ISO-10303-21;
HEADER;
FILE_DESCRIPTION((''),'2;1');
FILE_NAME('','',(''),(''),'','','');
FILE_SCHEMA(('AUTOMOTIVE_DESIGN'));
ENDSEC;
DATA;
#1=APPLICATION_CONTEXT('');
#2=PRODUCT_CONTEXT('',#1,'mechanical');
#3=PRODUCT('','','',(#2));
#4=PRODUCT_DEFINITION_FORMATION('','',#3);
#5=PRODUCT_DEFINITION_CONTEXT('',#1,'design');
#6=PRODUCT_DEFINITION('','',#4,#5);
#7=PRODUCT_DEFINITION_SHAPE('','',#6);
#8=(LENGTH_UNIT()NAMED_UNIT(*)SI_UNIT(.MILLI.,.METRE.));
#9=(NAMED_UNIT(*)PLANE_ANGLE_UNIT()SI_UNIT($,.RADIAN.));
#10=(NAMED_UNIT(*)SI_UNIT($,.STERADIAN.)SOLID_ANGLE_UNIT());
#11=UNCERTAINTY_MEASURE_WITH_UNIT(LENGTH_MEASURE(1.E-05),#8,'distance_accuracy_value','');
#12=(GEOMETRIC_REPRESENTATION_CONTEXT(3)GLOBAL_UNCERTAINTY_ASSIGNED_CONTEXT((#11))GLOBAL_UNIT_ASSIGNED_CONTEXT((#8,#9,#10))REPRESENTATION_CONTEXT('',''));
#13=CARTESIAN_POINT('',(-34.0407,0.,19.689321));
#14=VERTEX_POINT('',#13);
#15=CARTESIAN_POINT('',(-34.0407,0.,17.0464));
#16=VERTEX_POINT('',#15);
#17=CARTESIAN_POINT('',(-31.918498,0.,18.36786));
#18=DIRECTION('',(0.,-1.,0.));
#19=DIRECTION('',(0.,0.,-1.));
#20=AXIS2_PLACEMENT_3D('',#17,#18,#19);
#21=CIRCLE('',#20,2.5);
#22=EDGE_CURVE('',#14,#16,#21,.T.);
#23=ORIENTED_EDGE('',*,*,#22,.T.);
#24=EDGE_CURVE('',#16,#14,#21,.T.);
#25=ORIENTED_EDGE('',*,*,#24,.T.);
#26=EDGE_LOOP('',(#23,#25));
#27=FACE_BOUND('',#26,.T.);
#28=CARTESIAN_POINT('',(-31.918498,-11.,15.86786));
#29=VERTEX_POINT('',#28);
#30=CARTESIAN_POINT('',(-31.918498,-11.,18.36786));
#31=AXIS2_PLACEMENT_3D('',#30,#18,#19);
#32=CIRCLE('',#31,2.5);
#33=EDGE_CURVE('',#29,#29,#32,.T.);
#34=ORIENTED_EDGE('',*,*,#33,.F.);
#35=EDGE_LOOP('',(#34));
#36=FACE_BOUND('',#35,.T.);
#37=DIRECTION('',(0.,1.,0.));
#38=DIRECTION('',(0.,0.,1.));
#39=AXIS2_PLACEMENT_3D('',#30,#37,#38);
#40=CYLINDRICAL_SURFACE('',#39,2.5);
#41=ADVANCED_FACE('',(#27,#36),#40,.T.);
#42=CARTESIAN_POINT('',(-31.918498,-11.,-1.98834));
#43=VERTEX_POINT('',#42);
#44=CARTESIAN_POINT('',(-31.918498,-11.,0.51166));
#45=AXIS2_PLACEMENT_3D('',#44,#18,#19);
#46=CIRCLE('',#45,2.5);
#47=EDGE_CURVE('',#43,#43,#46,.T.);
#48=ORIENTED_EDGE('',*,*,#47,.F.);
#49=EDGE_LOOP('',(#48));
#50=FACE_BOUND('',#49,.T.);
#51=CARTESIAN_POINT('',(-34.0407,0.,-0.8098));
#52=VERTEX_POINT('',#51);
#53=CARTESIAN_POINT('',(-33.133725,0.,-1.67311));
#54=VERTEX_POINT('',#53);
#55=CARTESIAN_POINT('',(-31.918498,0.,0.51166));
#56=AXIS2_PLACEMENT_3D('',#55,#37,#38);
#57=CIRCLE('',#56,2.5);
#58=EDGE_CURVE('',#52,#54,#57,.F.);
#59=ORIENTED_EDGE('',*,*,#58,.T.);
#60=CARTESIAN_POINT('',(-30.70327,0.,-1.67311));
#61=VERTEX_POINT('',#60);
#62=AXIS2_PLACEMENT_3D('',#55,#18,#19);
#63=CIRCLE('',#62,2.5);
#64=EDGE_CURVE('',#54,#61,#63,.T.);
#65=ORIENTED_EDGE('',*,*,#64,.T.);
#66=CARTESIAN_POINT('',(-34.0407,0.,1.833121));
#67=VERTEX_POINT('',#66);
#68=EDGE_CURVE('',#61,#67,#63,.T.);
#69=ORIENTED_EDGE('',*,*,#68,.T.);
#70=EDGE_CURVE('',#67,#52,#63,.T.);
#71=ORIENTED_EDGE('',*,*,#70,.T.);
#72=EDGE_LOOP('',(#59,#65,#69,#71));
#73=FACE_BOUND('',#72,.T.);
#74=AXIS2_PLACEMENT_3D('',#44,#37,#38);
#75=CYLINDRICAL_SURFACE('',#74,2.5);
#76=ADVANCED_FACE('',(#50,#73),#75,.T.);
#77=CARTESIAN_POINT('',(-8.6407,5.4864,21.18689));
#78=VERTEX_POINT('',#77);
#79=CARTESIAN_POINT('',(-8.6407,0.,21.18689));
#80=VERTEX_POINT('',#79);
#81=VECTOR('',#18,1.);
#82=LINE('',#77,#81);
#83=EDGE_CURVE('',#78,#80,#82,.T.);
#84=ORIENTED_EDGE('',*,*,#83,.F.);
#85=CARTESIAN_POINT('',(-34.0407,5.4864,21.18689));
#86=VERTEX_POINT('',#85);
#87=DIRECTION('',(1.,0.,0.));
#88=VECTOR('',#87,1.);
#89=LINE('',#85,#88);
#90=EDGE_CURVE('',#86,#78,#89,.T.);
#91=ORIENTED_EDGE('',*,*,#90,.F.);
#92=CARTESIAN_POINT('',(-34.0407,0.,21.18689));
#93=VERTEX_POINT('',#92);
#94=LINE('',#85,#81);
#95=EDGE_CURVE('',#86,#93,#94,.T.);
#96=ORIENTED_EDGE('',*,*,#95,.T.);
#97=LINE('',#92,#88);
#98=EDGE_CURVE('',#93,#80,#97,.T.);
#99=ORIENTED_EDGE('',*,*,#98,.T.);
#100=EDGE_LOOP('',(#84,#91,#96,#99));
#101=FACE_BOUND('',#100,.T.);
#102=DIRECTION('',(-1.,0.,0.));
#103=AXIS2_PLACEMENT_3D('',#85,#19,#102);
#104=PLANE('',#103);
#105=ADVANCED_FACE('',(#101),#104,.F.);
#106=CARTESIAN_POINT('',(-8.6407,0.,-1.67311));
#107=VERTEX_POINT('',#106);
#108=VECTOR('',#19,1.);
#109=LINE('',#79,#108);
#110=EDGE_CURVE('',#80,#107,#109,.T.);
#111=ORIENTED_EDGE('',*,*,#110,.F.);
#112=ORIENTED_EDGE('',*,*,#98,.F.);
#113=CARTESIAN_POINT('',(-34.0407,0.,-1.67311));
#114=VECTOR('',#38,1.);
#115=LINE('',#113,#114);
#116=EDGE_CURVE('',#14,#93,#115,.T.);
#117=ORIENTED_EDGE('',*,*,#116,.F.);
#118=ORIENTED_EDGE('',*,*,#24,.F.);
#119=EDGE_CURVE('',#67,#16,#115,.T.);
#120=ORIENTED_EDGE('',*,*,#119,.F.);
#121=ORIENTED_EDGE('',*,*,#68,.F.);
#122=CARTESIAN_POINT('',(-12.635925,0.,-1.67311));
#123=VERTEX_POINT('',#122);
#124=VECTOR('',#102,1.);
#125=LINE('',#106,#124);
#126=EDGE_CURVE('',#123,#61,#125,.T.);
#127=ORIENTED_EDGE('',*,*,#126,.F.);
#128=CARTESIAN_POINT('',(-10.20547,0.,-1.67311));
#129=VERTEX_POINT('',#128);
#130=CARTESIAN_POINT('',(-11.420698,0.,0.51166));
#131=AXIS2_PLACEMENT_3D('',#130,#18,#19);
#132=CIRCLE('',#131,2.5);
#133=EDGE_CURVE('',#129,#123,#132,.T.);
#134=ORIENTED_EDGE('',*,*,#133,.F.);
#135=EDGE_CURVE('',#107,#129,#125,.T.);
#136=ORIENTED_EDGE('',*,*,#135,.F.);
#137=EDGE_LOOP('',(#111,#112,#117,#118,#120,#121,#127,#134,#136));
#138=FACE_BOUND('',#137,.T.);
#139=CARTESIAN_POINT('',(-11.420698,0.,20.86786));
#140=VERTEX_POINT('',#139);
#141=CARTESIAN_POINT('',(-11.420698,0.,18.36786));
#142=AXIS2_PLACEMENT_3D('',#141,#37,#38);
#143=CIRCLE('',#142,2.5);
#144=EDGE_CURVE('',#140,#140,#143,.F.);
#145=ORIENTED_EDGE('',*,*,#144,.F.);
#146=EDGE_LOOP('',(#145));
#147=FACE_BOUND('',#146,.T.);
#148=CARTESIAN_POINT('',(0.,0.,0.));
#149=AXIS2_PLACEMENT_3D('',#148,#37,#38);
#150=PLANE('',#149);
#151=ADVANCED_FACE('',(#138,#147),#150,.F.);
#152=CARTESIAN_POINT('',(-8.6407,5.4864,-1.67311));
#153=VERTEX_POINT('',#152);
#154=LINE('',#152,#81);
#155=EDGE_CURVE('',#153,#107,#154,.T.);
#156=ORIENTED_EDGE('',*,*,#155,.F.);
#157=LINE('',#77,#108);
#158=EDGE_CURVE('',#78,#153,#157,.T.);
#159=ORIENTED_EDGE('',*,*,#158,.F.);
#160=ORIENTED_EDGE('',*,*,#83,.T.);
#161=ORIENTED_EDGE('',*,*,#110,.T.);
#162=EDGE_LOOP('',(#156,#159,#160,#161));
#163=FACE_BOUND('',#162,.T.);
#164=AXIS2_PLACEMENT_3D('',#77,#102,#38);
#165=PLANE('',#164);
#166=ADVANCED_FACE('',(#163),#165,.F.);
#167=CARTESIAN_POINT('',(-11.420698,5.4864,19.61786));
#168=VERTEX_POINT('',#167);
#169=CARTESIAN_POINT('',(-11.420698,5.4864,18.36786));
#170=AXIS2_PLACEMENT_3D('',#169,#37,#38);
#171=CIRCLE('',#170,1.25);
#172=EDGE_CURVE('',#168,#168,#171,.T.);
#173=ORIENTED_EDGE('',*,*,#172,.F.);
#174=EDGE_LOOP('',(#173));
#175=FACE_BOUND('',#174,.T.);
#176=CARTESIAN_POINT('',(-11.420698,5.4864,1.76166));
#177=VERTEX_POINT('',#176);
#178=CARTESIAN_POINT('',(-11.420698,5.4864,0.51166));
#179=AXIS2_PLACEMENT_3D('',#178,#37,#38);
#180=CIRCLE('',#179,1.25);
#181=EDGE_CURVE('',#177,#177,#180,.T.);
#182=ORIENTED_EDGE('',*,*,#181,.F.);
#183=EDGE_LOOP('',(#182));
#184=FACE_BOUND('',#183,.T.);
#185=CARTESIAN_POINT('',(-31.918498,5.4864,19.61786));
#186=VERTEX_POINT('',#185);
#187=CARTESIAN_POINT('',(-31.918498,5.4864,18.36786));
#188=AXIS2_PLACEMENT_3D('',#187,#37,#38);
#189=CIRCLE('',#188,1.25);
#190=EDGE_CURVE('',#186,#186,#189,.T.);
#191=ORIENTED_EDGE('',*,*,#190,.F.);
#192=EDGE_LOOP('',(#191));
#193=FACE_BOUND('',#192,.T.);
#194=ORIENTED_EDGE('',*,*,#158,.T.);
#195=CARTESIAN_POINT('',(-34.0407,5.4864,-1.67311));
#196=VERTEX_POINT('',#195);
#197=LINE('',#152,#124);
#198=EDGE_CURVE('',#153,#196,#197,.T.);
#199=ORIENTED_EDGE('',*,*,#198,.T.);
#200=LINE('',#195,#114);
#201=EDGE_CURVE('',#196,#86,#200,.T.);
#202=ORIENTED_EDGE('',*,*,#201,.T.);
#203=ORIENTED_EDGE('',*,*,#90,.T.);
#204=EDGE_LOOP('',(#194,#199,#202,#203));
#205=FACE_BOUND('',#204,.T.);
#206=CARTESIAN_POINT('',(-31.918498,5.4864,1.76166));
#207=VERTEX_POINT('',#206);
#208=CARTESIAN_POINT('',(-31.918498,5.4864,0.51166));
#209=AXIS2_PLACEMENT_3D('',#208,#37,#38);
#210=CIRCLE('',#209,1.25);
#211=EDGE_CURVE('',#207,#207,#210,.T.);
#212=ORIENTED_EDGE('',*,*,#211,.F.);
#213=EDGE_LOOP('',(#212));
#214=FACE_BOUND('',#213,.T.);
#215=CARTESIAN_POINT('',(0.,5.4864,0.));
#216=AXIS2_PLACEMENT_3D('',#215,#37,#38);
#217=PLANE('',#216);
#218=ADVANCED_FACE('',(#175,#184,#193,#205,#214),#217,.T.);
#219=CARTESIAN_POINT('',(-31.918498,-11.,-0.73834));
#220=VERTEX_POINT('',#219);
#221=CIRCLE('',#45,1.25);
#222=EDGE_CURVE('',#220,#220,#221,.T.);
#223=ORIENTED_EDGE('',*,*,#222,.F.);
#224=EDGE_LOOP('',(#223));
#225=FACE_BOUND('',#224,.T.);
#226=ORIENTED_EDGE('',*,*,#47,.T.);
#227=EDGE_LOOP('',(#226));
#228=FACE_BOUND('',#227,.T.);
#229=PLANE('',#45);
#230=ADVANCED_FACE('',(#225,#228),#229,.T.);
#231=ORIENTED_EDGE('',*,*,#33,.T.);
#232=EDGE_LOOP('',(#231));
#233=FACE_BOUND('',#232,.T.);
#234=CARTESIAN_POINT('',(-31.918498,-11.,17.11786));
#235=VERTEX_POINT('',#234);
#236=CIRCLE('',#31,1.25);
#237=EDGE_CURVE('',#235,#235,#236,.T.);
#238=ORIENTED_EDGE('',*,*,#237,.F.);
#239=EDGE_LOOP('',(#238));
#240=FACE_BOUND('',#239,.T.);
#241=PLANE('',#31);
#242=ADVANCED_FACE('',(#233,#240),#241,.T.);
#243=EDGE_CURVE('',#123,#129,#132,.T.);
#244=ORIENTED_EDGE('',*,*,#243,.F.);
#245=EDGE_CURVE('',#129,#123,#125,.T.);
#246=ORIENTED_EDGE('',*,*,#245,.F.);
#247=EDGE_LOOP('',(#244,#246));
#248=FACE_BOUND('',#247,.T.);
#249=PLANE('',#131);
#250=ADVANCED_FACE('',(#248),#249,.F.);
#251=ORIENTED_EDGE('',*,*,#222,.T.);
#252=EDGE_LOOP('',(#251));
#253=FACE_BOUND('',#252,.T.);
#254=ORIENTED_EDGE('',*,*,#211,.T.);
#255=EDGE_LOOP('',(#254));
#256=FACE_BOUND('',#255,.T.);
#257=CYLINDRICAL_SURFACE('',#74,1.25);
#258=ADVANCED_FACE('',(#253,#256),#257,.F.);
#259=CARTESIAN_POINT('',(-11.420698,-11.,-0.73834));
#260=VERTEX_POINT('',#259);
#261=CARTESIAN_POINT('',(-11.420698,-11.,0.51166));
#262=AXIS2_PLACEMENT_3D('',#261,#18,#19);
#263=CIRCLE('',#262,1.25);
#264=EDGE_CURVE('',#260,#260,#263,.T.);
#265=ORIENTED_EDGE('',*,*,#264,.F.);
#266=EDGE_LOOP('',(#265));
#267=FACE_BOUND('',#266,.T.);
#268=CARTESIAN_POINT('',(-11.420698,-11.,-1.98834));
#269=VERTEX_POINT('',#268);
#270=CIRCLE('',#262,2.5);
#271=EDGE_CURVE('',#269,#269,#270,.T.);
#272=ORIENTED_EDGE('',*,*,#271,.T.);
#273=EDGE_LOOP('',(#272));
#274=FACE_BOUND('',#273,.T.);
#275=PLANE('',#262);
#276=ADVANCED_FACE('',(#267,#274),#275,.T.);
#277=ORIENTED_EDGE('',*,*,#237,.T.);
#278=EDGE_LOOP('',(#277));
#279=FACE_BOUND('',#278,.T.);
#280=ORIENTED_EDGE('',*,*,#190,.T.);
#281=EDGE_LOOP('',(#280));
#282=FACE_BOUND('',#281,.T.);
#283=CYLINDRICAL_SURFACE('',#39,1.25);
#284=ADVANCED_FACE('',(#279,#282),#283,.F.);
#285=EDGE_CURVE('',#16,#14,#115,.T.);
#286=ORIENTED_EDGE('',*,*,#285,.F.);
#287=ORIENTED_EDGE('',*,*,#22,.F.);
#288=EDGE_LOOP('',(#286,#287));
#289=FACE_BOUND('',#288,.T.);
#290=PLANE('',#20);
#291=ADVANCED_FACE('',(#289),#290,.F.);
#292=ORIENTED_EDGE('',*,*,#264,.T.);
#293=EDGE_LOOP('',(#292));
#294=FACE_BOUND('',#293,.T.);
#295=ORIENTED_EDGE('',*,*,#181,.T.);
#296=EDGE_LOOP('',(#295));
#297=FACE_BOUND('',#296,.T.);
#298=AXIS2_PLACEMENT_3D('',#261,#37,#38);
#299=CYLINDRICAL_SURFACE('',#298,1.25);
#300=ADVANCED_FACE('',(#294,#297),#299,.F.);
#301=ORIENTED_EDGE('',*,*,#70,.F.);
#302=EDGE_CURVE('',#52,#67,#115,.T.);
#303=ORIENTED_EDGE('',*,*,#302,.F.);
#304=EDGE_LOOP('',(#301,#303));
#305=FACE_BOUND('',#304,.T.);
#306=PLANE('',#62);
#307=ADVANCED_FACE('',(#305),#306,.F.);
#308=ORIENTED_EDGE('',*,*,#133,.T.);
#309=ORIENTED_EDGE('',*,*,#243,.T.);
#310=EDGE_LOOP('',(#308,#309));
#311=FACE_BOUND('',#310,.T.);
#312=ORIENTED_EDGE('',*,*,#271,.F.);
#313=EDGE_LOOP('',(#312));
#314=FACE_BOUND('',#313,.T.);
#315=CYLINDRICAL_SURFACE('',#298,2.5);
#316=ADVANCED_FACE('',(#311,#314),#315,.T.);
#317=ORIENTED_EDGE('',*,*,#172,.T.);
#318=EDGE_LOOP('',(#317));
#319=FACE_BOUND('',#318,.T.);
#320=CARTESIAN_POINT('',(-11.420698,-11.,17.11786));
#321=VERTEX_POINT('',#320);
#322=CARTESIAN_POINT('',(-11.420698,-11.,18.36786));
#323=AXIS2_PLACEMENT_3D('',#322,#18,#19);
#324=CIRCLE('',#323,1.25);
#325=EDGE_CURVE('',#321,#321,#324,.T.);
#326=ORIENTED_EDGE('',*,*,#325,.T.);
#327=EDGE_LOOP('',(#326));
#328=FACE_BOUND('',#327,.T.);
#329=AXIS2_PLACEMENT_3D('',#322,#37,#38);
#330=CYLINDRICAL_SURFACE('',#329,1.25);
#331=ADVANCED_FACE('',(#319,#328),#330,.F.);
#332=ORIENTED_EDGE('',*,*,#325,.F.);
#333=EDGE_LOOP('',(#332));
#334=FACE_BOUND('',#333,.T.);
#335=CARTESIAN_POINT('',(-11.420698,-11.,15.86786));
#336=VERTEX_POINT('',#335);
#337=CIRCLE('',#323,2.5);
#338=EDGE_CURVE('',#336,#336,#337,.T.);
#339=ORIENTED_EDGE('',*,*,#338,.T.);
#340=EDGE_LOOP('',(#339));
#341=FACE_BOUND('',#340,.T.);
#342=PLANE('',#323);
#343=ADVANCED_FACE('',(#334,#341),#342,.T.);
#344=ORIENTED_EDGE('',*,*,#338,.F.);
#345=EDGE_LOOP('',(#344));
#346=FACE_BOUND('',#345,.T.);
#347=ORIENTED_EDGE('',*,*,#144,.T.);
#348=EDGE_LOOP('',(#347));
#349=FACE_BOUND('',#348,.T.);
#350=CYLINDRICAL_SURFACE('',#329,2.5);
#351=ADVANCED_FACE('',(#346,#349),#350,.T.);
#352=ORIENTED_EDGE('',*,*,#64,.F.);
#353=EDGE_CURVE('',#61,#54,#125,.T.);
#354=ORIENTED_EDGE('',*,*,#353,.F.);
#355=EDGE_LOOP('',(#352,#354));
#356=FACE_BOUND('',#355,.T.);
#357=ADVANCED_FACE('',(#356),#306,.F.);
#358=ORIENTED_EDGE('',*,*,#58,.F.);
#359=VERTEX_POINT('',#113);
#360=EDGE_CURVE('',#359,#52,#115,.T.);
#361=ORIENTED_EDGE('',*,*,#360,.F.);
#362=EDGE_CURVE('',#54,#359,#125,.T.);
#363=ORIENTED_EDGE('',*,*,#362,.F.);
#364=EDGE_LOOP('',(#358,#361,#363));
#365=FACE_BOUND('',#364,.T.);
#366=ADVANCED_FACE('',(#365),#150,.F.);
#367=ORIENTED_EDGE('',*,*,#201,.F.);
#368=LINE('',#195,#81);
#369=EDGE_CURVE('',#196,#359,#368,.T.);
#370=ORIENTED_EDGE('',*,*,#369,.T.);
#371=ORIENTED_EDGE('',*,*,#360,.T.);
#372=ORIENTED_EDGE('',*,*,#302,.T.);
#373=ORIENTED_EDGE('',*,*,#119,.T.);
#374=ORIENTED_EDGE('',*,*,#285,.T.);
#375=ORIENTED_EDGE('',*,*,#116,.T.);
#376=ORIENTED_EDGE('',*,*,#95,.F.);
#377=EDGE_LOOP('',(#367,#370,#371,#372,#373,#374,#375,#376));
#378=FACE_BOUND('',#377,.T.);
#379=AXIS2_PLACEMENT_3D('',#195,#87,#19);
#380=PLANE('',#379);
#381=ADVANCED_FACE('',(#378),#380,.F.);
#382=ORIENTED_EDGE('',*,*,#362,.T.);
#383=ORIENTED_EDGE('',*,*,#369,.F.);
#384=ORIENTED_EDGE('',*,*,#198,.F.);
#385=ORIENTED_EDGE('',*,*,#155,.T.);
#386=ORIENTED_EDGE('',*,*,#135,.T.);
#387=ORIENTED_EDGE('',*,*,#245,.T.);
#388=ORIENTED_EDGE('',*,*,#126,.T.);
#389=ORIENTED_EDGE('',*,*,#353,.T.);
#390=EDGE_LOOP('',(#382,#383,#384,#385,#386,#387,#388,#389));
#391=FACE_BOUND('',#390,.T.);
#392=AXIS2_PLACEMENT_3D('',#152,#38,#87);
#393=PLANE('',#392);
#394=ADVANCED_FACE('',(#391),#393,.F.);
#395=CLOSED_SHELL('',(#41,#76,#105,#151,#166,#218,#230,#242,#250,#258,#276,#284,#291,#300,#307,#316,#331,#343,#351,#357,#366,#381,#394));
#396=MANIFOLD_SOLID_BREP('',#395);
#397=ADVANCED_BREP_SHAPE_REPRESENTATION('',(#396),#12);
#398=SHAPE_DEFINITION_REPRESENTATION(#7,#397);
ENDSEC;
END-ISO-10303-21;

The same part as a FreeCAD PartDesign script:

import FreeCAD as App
import Part
import Sketcher

V = App.Vector
Q = App.Units.Quantity


def add_polygon(sketch, points):
    """Adds a closed chain of lines whose ends are joined by coincident constraints."""
    first, n = sketch.GeometryCount, len(points)
    for a, b in zip(points, points[1:] + points[:1]):
        sketch.addGeometry(Part.LineSegment(App.Vector(*a, 0), App.Vector(*b, 0)), False)
    for i in range(n):
        sketch.addConstraint(Sketcher.Constraint("Coincident", first + i, 2, first + (i + 1) % n, 1))

doc = App.newDocument("Part")
params = doc.addObject("Spreadsheet::Sheet", "Params")
for row, (alias, value) in enumerate([
    ("sketch1_width", "25.4 mm"),
    ("sketch1_height", "22.86 mm"),
    ("pad1_length", "5.4864 mm"),
    ("sketch2_diameter", "5 mm"),
    ("sketch2_diameter2", "2.5 mm"),
    ("pad2_length", "11 mm"),
    ("sketch3_diameter", "2.5 mm"),
], start=1):
    params.set(f"A{row}", alias)
    params.set(f"B{row}", "=" + value)
    params.setAlias(f"B{row}", alias)

body = doc.addObject("PartDesign::Body", "Body")

# Sketch on XZ plane
sketch1 = body.newObject("Sketcher::SketchObject", "Sketch")
sketch1.AttachmentSupport = (doc.getObject("XZ_Plane"), [""])
sketch1.MapMode = "FlatFace"
add_polygon(sketch1, [(-34, -2), (-34, 21), (-9, 21), (-9, -2)])  # lines 0-3
sketch1.addConstraint([
    Sketcher.Constraint("Vertical", 0),
    Sketcher.Constraint("Horizontal", 1),
    Sketcher.Constraint("Vertical", 2),
    Sketcher.Constraint("Horizontal", 3),
    Sketcher.Constraint("DistanceX", 1, 1, 1, 2, Q("25.4 mm")),
    Sketcher.Constraint("DistanceY", 0, 1, 0, 2, Q("22.86 mm")),
    Sketcher.Constraint("DistanceX", 0, 2, -1, 1, Q("34.0407 mm")),
    Sketcher.Constraint("DistanceY", -1, 1, 0, 2, Q("21.18689 mm")),
])
sketch1.setExpression("Constraints[8]", "Params.sketch1_width")
sketch1.setExpression("Constraints[9]", "Params.sketch1_height")
pad1 = body.newObject("PartDesign::Pad", "Pad")
pad1.Profile = sketch1
pad1.setExpression("Length", "Params.pad1_length")
pad1.Reversed = True

# Sketch on XZ plane
sketch2 = body.newObject("Sketcher::SketchObject", "Sketch001")
sketch2.AttachmentSupport = (doc.getObject("XZ_Plane"), [""])
sketch2.MapMode = "FlatFace"
sketch2.addGeometry([
    Part.Circle(V(-31.9, 18.4, 0), V(0, 0, 1), 2.5),  # 0
    Part.Circle(V(-31.9, 18.4, 0), V(0, 0, 1), 1.2),  # 1
    Part.Circle(V(-31.9, 0.5, 0), V(0, 0, 1), 2.5),  # 2
    Part.Circle(V(-31.9, 0.5, 0), V(0, 0, 1), 1.2),  # 3
    Part.Circle(V(-11.4, 0.5, 0), V(0, 0, 1), 2.5),  # 4
    Part.Circle(V(-11.4, 0.5, 0), V(0, 0, 1), 1.2),  # 5
    Part.Circle(V(-11.4, 18.4, 0), V(0, 0, 1), 2.5),  # 6
    Part.Circle(V(-11.4, 18.4, 0), V(0, 0, 1), 1.2),  # 7
], False)
sketch2.addConstraint([
    Sketcher.Constraint("Coincident", 1, 3, 0, 3),
    Sketcher.Constraint("Coincident", 3, 3, 2, 3),
    Sketcher.Constraint("Coincident", 5, 3, 4, 3),
    Sketcher.Constraint("Coincident", 7, 3, 6, 3),
    Sketcher.Constraint("Equal", 0, 2),
    Sketcher.Constraint("Equal", 1, 3),
    Sketcher.Constraint("Equal", 2, 4),
    Sketcher.Constraint("Equal", 3, 5),
    Sketcher.Constraint("Equal", 4, 6),
    Sketcher.Constraint("Equal", 5, 7),
    Sketcher.Constraint("Horizontal", 3, 3, 4, 3),
    Sketcher.Constraint("Horizontal", 1, 3, 6, 3),
    Sketcher.Constraint("Vertical", 1, 3, 2, 3),
    Sketcher.Constraint("Vertical", 5, 3, 6, 3),
    Sketcher.Constraint("Diameter", 0, Q("5 mm")),
    Sketcher.Constraint("Diameter", 1, Q("2.5 mm")),
    Sketcher.Constraint("DistanceY", 2, 3, 0, 3, Q("17.8562 mm")),
    Sketcher.Constraint("DistanceX", 2, 3, 4, 3, Q("20.4978 mm")),
    Sketcher.Constraint("DistanceY", -1, 1, 0, 3, Q("18.36786 mm")),
    Sketcher.Constraint("DistanceX", 0, 3, -1, 1, Q("31.918498 mm")),
])
sketch2.setExpression("Constraints[14]", "Params.sketch2_diameter")
sketch2.setExpression("Constraints[15]", "Params.sketch2_diameter2")
pad2 = body.newObject("PartDesign::Pad", "Pad001")
pad2.Profile = sketch2
pad2.setExpression("Length", "Params.pad2_length")

# Sketch on XZ plane
sketch3 = body.newObject("Sketcher::SketchObject", "Sketch002")
sketch3.AttachmentSupport = (doc.getObject("XZ_Plane"), [""])
sketch3.MapMode = "FlatFace"
sketch3.AttachmentOffset = App.Placement(V(0, 0, -5.4864), App.Rotation())
sketch3.addGeometry([
    Part.Circle(V(-31.9, 0.5, 0), V(0, 0, 1), 1.2),
    Part.Circle(V(-11.4, 0.5, 0), V(0, 0, 1), 1.2),
    Part.Circle(V(-11.4, 18.4, 0), V(0, 0, 1), 1.2),
    Part.Circle(V(-31.9, 18.4, 0), V(0, 0, 1), 1.2),
], False)
sketch3.addConstraint([
    Sketcher.Constraint("Equal", 0, 1),
    Sketcher.Constraint("Equal", 1, 2),
    Sketcher.Constraint("Equal", 2, 3),
    Sketcher.Constraint("Horizontal", 0, 3, 1, 3),
    Sketcher.Constraint("Horizontal", 2, 3, 3, 3),
    Sketcher.Constraint("Vertical", 1, 3, 2, 3),
    Sketcher.Constraint("Vertical", 0, 3, 3, 3),
    Sketcher.Constraint("Diameter", 0, Q("2.5 mm")),
    Sketcher.Constraint("DistanceX", 0, 3, 1, 3, Q("20.4978 mm")),
    Sketcher.Constraint("DistanceY", 1, 3, 2, 3, Q("17.8562 mm")),
    Sketcher.Constraint("DistanceY", -1, 1, 0, 3, Q("0.51166 mm")),
    Sketcher.Constraint("DistanceX", 0, 3, -1, 1, Q("31.918498 mm")),
])
sketch3.setExpression("Constraints[7]", "Params.sketch3_diameter")
pocket1 = body.newObject("PartDesign::Pocket", "Pocket")
pocket1.Profile = sketch3
pocket1.Type = "ThroughAll"
pocket1.Midplane = True

doc.recompute()
